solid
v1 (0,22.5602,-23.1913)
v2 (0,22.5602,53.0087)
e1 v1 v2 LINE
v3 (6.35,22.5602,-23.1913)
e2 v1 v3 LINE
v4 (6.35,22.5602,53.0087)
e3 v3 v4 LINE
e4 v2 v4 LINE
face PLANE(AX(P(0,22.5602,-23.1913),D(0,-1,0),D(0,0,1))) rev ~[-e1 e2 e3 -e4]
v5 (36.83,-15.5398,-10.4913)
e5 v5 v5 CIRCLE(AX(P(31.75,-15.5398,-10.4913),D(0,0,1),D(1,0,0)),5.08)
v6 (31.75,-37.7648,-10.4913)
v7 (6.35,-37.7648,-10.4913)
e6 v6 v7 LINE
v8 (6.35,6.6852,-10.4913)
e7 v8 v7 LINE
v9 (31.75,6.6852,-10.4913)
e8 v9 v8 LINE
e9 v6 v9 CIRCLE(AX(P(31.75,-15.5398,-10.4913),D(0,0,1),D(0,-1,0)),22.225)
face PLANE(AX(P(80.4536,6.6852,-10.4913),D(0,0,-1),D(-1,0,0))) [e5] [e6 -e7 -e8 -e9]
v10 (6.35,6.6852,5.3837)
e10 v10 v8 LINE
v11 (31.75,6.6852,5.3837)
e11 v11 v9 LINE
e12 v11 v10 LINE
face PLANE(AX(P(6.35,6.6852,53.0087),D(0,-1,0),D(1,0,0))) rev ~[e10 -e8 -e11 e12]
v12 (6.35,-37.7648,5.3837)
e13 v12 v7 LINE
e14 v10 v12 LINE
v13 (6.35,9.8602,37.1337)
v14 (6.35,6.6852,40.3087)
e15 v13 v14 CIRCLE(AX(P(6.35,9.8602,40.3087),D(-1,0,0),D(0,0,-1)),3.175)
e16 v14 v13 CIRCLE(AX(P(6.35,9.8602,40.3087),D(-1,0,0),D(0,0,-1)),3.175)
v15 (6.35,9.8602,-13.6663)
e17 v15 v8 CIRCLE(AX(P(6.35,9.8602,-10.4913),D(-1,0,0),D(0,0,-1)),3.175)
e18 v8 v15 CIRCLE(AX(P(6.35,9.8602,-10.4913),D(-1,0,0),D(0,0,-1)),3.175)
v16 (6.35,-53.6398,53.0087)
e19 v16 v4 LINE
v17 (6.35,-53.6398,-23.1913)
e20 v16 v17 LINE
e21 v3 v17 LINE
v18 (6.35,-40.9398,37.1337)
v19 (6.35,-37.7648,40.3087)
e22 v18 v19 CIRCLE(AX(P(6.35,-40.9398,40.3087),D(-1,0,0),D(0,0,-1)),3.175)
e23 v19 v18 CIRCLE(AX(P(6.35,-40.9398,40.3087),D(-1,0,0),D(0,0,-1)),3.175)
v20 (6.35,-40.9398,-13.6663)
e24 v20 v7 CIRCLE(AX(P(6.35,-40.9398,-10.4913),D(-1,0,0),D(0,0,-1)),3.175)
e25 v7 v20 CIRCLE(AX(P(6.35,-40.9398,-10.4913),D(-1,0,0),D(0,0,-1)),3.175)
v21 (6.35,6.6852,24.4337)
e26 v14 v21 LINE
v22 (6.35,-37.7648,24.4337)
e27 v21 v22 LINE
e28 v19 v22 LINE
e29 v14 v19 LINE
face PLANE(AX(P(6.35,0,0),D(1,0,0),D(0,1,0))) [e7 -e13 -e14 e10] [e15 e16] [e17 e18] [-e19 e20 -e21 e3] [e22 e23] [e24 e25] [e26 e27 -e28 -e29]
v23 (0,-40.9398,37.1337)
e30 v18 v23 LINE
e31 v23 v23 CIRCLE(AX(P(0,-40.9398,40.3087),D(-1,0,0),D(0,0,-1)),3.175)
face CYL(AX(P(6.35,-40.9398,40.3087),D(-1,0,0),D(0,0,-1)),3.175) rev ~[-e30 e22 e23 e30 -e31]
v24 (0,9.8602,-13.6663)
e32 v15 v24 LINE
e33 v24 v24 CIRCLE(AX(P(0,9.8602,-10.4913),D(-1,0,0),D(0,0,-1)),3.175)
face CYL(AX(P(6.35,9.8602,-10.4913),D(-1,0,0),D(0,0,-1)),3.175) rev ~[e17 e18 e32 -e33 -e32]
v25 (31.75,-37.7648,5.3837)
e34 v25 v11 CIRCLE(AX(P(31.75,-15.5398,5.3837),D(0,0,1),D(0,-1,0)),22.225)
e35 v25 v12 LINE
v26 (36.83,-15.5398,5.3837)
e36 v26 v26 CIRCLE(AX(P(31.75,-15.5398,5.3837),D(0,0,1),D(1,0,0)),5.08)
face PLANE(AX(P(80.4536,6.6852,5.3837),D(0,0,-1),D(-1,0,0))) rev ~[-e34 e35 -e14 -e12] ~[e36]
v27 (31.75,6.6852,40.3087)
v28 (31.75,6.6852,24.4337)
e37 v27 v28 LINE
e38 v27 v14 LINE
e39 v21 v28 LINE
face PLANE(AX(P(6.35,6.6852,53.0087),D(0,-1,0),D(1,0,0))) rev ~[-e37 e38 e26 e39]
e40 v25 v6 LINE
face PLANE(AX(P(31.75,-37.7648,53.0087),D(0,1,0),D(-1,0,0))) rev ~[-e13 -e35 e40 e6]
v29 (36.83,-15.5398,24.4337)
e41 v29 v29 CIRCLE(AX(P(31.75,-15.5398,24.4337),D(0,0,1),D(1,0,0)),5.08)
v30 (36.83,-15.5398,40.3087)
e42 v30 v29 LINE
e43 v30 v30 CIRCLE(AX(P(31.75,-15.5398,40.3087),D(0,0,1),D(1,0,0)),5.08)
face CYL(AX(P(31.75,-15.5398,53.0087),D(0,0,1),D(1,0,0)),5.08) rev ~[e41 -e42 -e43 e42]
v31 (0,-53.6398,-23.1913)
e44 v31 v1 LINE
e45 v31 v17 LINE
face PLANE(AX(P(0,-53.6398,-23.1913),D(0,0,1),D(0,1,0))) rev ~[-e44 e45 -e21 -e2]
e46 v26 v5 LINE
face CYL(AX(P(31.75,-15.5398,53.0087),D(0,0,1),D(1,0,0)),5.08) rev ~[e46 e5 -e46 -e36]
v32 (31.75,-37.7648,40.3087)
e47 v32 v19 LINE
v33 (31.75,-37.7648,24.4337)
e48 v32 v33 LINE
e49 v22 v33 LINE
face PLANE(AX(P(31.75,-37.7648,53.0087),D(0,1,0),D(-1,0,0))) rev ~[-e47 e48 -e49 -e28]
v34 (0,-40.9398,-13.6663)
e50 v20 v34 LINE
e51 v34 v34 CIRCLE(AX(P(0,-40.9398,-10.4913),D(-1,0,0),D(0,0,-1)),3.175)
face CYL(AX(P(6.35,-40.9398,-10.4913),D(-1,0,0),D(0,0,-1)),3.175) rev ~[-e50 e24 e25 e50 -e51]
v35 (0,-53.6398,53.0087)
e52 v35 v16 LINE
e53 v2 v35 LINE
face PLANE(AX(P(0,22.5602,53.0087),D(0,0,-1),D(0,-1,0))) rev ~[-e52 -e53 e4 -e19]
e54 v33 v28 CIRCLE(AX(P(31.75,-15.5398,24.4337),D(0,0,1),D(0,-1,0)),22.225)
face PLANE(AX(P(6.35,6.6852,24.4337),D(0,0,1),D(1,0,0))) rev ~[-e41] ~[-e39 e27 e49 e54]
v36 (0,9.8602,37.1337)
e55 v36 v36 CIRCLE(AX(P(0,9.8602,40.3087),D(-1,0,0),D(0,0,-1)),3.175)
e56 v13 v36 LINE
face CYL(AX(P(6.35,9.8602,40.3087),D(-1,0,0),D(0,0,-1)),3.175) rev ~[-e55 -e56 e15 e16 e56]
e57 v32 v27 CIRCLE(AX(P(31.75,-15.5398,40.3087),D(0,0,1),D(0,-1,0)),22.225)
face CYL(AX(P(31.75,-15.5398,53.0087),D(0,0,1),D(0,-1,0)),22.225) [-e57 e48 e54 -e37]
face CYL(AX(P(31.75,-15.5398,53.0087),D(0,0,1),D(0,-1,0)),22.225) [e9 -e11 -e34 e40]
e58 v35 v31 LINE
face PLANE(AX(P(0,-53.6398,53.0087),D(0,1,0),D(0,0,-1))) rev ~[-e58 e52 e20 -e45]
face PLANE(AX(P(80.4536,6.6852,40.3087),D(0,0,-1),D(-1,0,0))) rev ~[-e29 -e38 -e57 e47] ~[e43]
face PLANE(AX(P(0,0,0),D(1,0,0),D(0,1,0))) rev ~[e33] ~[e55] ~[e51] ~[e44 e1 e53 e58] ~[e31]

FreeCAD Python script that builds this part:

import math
import FreeCAD as App
import Part
import Sketcher
Q = App.Units.Quantity


def add_polygon(sketch, points):
    """Adds a closed chain of lines whose ends are joined by coincident constraints."""
    first, n = sketch.GeometryCount, len(points)
    for a, b in zip(points, points[1:] + points[:1]):
        sketch.addGeometry(Part.LineSegment(App.Vector(*a, 0), App.Vector(*b, 0)), False)
    for i in range(n):
        sketch.addConstraint(Sketcher.Constraint("Coincident", first + i, 2, first + (i + 1) % n, 1))

doc = App.newDocument("Part")
body = doc.addObject("PartDesign::Body", "Body")

# Sketch on YZ plane
sketch1 = doc.addObject("Sketcher::SketchObject", "Sketch")
body.addObject(sketch1)
sketch1.AttachmentSupport = (doc.YZ_Plane, [""])
sketch1.MapMode = "FlatFace"
add_polygon(sketch1, [(23, -23), (23, 53), (-54, 53), (-54, -23)])  # lines 0-3
sketch1.addConstraint(Sketcher.Constraint("Vertical", 0))
sketch1.addConstraint(Sketcher.Constraint("Horizontal", 1))
sketch1.addConstraint(Sketcher.Constraint("Vertical", 2))
sketch1.addConstraint(Sketcher.Constraint("Horizontal", 3))
sketch1.addConstraint(Sketcher.Constraint("Equal", 3, 0))
sketch1.addConstraint(Sketcher.Constraint("DistanceX", 1, 2, 1, 1, Q("3 in")))
sketch1.addConstraint(Sketcher.Constraint("DistanceX", -1, 1, 0, 2, Q("0.8882 in")))
sketch1.addConstraint(Sketcher.Constraint("DistanceY", -1, 1, 0, 2, Q("53.0087 mm")))
pad1 = doc.addObject("PartDesign::Pad", "Pad")
body.addObject(pad1)
pad1.Profile = sketch1
pad1.Length = Q("0.25 in")

# Sketch on YZ plane
sketch2 = doc.addObject("Sketcher::SketchObject", "Sketch001")
body.addObject(sketch2)
sketch2.AttachmentSupport = (doc.YZ_Plane, [""])
sketch2.MapMode = "FlatFace"
sketch2.AttachmentOffset = App.Placement(App.Vector(0, 0, 0.25 * 25.4), App.Rotation())
sketch2.addGeometry(Part.Circle(App.Vector(9.9, 40.3, 0), App.Vector(0, 0, 1), 3.2), False)
sketch2.addGeometry(Part.Circle(App.Vector(9.9, -10.5, 0), App.Vector(0, 0, 1), 3.2), False)
sketch2.addGeometry(Part.Circle(App.Vector(-40.9, 40.3, 0), App.Vector(0, 0, 1), 3.2), False)
sketch2.addGeometry(Part.Circle(App.Vector(-40.9, -10.5, 0), App.Vector(0, 0, 1), 3.2), False)
sketch2.addConstraint(Sketcher.Constraint("Equal", 0, 1))
sketch2.addConstraint(Sketcher.Constraint("Equal", 1, 2))
sketch2.addConstraint(Sketcher.Constraint("Equal", 2, 3))
sketch2.addConstraint(Sketcher.Constraint("Horizontal", 0, 3, 2, 3))
sketch2.addConstraint(Sketcher.Constraint("Horizontal", 1, 3, 3, 3))
sketch2.addConstraint(Sketcher.Constraint("Vertical", 0, 3, 1, 3))
sketch2.addConstraint(Sketcher.Constraint("Vertical", 2, 3, 3, 3))
sketch2.addConstraint(Sketcher.Constraint("Diameter", 0, Q("0.25 in")))
sketch2.addConstraint(Sketcher.Constraint("DistanceY", 1, 3, 0, 3, Q("2 in")))
sketch2.addConstraint(Sketcher.Constraint("DistanceX", 2, 3, 0, 3, Q("2 in")))
sketch2.addConstraint(Sketcher.Constraint("DistanceX", -1, 1, 0, 3, Q("0.3882 in")))
sketch2.addConstraint(Sketcher.Constraint("DistanceY", -1, 1, 0, 3, Q("40.3087 mm")))
doc.recompute()
hole = doc.addObject("PartDesign::Hole", "Hole")
body.addObject(hole)
hole.Profile = sketch2
hole.ThreadType = "None"
hole.Diameter = Q("0.25 in")
hole.DepthType = "ThroughAll"

# Sketch on XY plane
sketch3 = doc.addObject("Sketcher::SketchObject", "Sketch002")
body.addObject(sketch3)
sketch3.AttachmentSupport = (doc.XY_Plane, [""])
sketch3.MapMode = "FlatFace"
sketch3.AttachmentOffset = App.Placement(App.Vector(0, 0, 53.0087), App.Rotation())
sketch3.addGeometry(Part.LineSegment(App.Vector(32, 7, 0), App.Vector(6, 7, 0)), False)
sketch3.addGeometry(Part.LineSegment(App.Vector(6, 7, 0), App.Vector(6, -38, 0)), False)
sketch3.addGeometry(Part.LineSegment(App.Vector(6, -38, 0), App.Vector(32, -38, 0)), False)
sketch3.addGeometry(Part.ArcOfCircle(Part.Circle(App.Vector(32, -16, 0), App.Vector(0, 0, 1), 22), math.radians(-90), math.radians(90)), False)
sketch3.addGeometry(Part.Circle(App.Vector(32, -16, 0), App.Vector(0, 0, 1), 5), False)
sketch3.addConstraint(Sketcher.Constraint("Coincident", 0, 2, 1, 1))
sketch3.addConstraint(Sketcher.Constraint("Coincident", 1, 2, 2, 1))
sketch3.addConstraint(Sketcher.Constraint("Tangent", 2, 2, 3, 1))
sketch3.addConstraint(Sketcher.Constraint("Tangent", 3, 2, 0, 1))
sketch3.addConstraint(Sketcher.Constraint("Horizontal", 0))
sketch3.addConstraint(Sketcher.Constraint("Vertical", 1))
sketch3.addConstraint(Sketcher.Constraint("Horizontal", 2))
sketch3.addConstraint(Sketcher.Constraint("Coincident", 4, 3, 3, 3))
sketch3.addConstraint(Sketcher.Constraint("Diameter", 4, Q("0.4 in")))
sketch3.addConstraint(Sketcher.Constraint("DistanceX", 0, 2, 0, 1, Q("1 in")))
sketch3.addConstraint(Sketcher.Constraint("Radius", 3, Q("0.875 in")))
sketch3.addConstraint(Sketcher.Constraint("DistanceX", -1, 1, 3, 3, Q("1.25 in")))
sketch3.addConstraint(Sketcher.Constraint("DistanceY", 3, 3, -1, 1, Q("0.6118 in")))
pad2 = doc.addObject("PartDesign::Pad", "Pad001")
body.addObject(pad2)
pad2.Profile = sketch3
pad2.Length = Q("3 in")
pad2.Reversed = True

# Sketch on XZ plane
sketch4 = doc.addObject("Sketcher::SketchObject", "Sketch003")
body.addObject(sketch4)
sketch4.AttachmentSupport = (doc.XZ_Plane, [""])
sketch4.MapMode = "FlatFace"
sketch4.AttachmentOffset = App.Placement(App.Vector(0, 0, -0.2631969 * 25.4), App.Rotation())
add_polygon(sketch4, [(6, 53), (80, 53), (80, 40), (6, 40)])  # lines 0-3
add_polygon(sketch4, [(80, -23), (6, -23), (6, -10), (80, -10)])  # lines 4-7
add_polygon(sketch4, [(6, 5), (6, 24), (80, 24), (80, 5)])  # lines 8-11
sketch4.addConstraint(Sketcher.Constraint("Horizontal", 0))
sketch4.addConstraint(Sketcher.Constraint("Vertical", 1))
sketch4.addConstraint(Sketcher.Constraint("Horizontal", 2))
sketch4.addConstraint(Sketcher.Constraint("Vertical", 3))
sketch4.addConstraint(Sketcher.Constraint("Horizontal", 4))
sketch4.addConstraint(Sketcher.Constraint("Vertical", 5))
sketch4.addConstraint(Sketcher.Constraint("Horizontal", 6))
sketch4.addConstraint(Sketcher.Constraint("Vertical", 7))
sketch4.addConstraint(Sketcher.Constraint("Vertical", 8))
sketch4.addConstraint(Sketcher.Constraint("Horizontal", 9))
sketch4.addConstraint(Sketcher.Constraint("Vertical", 10))
sketch4.addConstraint(Sketcher.Constraint("Horizontal", 11))
sketch4.addConstraint(Sketcher.Constraint("Vertical", 3, 2, 4, 2))
sketch4.addConstraint(Sketcher.Constraint("Vertical", 1, 2, 6, 2))
sketch4.addConstraint(Sketcher.Constraint("Vertical", 5, 2, 8, 2))
sketch4.addConstraint(Sketcher.Constraint("Vertical", 7, 2, 9, 2))
sketch4.addConstraint(Sketcher.Constraint("Equal", 3, 5))
sketch4.addConstraint(Sketcher.Constraint("DistanceY", 1, 2, 1, 1, Q("0.5 in")))
sketch4.addConstraint(Sketcher.Constraint("DistanceY", 8, 1, 8, 2, Q("0.75 in")))
sketch4.addConstraint(Sketcher.Constraint("DistanceY", 4, 2, 3, 2, Q("3 in")))
sketch4.addConstraint(Sketcher.Constraint("DistanceY", 8, 2, 2, 2, Q("0.625 in")))
sketch4.addConstraint(Sketcher.Constraint("DistanceX", -1, 1, 2, 2, Q("0.25 in")))
sketch4.addConstraint(Sketcher.Constraint("DistanceX", 0, 1, 0, 2, Q("74.1036 mm")))
sketch4.addConstraint(Sketcher.Constraint("DistanceY", -1, 1, 0, 2, Q("53.0087 mm")))
pocket1 = doc.addObject("PartDesign::Pocket", "Pocket")
body.addObject(pocket1)
pocket1.Profile = sketch4
pocket1.Length = Q("3 in")
pocket1.Reversed = True

doc.recompute()
